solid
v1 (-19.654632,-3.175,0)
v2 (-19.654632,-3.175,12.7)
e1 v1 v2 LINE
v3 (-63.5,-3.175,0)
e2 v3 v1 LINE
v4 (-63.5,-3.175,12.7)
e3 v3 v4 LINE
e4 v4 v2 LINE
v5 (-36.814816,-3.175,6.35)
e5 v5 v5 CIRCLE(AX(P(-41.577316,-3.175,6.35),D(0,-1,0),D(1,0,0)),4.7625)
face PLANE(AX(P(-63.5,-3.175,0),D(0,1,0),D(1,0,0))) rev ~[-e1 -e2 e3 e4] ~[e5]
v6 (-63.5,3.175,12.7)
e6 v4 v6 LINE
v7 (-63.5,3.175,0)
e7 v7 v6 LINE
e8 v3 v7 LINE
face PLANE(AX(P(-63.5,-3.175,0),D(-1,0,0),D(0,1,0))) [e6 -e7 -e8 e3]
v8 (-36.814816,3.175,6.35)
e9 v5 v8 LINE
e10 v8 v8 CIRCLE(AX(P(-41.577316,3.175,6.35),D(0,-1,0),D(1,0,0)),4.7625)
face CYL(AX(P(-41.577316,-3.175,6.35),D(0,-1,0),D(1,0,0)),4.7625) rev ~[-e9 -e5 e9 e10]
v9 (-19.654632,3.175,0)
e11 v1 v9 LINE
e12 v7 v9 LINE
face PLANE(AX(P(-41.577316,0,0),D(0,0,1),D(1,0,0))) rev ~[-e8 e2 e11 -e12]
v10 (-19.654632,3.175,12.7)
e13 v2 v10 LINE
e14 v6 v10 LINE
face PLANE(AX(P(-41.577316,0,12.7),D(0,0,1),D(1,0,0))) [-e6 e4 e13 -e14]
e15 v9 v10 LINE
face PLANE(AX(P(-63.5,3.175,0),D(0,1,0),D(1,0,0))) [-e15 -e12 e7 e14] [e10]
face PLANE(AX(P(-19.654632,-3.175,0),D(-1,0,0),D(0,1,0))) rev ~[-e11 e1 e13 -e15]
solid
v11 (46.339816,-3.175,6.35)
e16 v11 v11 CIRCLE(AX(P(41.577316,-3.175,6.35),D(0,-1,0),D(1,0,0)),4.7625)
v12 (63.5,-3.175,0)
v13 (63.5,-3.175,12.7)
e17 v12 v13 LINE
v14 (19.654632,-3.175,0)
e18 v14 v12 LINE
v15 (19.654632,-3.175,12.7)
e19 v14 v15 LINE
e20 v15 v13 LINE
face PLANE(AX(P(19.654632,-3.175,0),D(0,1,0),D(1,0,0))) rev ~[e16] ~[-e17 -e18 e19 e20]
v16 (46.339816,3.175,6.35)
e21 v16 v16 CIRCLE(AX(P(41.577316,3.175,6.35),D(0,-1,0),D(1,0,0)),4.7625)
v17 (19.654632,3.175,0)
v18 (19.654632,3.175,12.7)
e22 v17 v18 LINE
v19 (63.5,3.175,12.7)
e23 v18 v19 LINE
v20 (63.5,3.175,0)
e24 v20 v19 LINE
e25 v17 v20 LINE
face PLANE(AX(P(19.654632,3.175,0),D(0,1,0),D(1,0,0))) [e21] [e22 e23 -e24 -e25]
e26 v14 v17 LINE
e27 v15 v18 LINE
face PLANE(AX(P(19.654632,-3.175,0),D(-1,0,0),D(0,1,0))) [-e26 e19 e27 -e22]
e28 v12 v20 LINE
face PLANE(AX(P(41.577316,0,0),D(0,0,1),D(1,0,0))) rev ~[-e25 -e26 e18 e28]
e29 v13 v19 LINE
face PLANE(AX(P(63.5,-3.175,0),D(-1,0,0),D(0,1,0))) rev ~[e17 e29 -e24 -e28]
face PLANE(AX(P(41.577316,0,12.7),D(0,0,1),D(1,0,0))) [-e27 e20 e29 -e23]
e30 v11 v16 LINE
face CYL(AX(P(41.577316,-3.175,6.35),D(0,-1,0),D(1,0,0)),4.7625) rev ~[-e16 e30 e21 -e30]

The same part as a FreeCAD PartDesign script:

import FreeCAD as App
import Part
import Sketcher
Q = App.Units.Quantity


def add_polygon(sketch, points):
    """Adds a closed chain of lines whose ends are joined by coincident constraints."""
    first, n = sketch.GeometryCount, len(points)
    for a, b in zip(points, points[1:] + points[:1]):
        sketch.addGeometry(Part.LineSegment(App.Vector(*a, 0), App.Vector(*b, 0)), False)
    for i in range(n):
        sketch.addConstraint(Sketcher.Constraint("Coincident", first + i, 2, first + (i + 1) % n, 1))

doc = App.newDocument("Part")
body = doc.addObject("PartDesign::Body", "Body")
body.AllowCompound = True

# Sketch on XY plane
sketch1 = body.newObject("Sketcher::SketchObject", "Sketch")
sketch1.AttachmentSupport = (doc.getObject("XY_Plane"), [""])
sketch1.MapMode = "FlatFace"
add_polygon(sketch1, [(-64, 3), (-64, -3), (-20, -3), (-20, 3)])  # lines 0-3
add_polygon(sketch1, [(20, 3), (20, -3), (64, -3), (64, 3)])  # lines 4-7
sketch1.addConstraint([
    Sketcher.Constraint("Vertical", 0),
    Sketcher.Constraint("Horizontal", 1),
    Sketcher.Constraint("Vertical", 2),
    Sketcher.Constraint("Horizontal", 3),
    Sketcher.Constraint("Vertical", 4),
    Sketcher.Constraint("Horizontal", 5),
    Sketcher.Constraint("Vertical", 6),
    Sketcher.Constraint("Horizontal", 7),
    Sketcher.Constraint("Symmetric", 2, 2, 4, 2, -1, 1),
    Sketcher.Constraint("Symmetric", 0, 2, 6, 2, -1, 1),
    Sketcher.Constraint("Horizontal", 1, 2, 4, 2),
    Sketcher.Constraint("DistanceX", 0, 2, 5, 2, Q("5 in")),
    Sketcher.Constraint("DistanceY", 0, 2, 0, 1, Q("0.25 in")),
    Sketcher.Constraint("DistanceX", 1, 1, 1, 2, 43.845368),
])
pad1 = body.newObject("PartDesign::Pad", "Pad")
pad1.Profile = sketch1
pad1.Length = Q("0.5 in")

# Sketch on XZ plane
sketch2 = body.newObject("Sketcher::SketchObject", "Sketch001")
sketch2.AttachmentSupport = (doc.getObject("XZ_Plane"), [""])
sketch2.MapMode = "FlatFace"
sketch2.AttachmentOffset = App.Placement(App.Vector(0, 0, 0.125 * 25.4), App.Rotation())
sketch2.addGeometry([
    Part.Circle(App.Vector(-41.6, 6.3, 0), App.Vector(0, 0, 1), 4.8),
    Part.Circle(App.Vector(41.6, 6.3, 0), App.Vector(0, 0, 1), 4.8),
], False)
sketch2.addConstraint([
    Sketcher.Constraint("Equal", 0, 1),
    Sketcher.Constraint("Symmetric", 0, 3, 1, 3, -2),
    Sketcher.Constraint("Diameter", 0, Q("0.375 in")),
    Sketcher.Constraint("DistanceY", -1, 1, 0, 3, Q("0.25 in")),
    Sketcher.Constraint("DistanceX", 0, 3, -1, 1, 41.577316),
])
pocket1 = body.newObject("PartDesign::Pocket", "Pocket")
pocket1.Profile = sketch2
pocket1.Length = Q("1 in")

doc.recompute()
